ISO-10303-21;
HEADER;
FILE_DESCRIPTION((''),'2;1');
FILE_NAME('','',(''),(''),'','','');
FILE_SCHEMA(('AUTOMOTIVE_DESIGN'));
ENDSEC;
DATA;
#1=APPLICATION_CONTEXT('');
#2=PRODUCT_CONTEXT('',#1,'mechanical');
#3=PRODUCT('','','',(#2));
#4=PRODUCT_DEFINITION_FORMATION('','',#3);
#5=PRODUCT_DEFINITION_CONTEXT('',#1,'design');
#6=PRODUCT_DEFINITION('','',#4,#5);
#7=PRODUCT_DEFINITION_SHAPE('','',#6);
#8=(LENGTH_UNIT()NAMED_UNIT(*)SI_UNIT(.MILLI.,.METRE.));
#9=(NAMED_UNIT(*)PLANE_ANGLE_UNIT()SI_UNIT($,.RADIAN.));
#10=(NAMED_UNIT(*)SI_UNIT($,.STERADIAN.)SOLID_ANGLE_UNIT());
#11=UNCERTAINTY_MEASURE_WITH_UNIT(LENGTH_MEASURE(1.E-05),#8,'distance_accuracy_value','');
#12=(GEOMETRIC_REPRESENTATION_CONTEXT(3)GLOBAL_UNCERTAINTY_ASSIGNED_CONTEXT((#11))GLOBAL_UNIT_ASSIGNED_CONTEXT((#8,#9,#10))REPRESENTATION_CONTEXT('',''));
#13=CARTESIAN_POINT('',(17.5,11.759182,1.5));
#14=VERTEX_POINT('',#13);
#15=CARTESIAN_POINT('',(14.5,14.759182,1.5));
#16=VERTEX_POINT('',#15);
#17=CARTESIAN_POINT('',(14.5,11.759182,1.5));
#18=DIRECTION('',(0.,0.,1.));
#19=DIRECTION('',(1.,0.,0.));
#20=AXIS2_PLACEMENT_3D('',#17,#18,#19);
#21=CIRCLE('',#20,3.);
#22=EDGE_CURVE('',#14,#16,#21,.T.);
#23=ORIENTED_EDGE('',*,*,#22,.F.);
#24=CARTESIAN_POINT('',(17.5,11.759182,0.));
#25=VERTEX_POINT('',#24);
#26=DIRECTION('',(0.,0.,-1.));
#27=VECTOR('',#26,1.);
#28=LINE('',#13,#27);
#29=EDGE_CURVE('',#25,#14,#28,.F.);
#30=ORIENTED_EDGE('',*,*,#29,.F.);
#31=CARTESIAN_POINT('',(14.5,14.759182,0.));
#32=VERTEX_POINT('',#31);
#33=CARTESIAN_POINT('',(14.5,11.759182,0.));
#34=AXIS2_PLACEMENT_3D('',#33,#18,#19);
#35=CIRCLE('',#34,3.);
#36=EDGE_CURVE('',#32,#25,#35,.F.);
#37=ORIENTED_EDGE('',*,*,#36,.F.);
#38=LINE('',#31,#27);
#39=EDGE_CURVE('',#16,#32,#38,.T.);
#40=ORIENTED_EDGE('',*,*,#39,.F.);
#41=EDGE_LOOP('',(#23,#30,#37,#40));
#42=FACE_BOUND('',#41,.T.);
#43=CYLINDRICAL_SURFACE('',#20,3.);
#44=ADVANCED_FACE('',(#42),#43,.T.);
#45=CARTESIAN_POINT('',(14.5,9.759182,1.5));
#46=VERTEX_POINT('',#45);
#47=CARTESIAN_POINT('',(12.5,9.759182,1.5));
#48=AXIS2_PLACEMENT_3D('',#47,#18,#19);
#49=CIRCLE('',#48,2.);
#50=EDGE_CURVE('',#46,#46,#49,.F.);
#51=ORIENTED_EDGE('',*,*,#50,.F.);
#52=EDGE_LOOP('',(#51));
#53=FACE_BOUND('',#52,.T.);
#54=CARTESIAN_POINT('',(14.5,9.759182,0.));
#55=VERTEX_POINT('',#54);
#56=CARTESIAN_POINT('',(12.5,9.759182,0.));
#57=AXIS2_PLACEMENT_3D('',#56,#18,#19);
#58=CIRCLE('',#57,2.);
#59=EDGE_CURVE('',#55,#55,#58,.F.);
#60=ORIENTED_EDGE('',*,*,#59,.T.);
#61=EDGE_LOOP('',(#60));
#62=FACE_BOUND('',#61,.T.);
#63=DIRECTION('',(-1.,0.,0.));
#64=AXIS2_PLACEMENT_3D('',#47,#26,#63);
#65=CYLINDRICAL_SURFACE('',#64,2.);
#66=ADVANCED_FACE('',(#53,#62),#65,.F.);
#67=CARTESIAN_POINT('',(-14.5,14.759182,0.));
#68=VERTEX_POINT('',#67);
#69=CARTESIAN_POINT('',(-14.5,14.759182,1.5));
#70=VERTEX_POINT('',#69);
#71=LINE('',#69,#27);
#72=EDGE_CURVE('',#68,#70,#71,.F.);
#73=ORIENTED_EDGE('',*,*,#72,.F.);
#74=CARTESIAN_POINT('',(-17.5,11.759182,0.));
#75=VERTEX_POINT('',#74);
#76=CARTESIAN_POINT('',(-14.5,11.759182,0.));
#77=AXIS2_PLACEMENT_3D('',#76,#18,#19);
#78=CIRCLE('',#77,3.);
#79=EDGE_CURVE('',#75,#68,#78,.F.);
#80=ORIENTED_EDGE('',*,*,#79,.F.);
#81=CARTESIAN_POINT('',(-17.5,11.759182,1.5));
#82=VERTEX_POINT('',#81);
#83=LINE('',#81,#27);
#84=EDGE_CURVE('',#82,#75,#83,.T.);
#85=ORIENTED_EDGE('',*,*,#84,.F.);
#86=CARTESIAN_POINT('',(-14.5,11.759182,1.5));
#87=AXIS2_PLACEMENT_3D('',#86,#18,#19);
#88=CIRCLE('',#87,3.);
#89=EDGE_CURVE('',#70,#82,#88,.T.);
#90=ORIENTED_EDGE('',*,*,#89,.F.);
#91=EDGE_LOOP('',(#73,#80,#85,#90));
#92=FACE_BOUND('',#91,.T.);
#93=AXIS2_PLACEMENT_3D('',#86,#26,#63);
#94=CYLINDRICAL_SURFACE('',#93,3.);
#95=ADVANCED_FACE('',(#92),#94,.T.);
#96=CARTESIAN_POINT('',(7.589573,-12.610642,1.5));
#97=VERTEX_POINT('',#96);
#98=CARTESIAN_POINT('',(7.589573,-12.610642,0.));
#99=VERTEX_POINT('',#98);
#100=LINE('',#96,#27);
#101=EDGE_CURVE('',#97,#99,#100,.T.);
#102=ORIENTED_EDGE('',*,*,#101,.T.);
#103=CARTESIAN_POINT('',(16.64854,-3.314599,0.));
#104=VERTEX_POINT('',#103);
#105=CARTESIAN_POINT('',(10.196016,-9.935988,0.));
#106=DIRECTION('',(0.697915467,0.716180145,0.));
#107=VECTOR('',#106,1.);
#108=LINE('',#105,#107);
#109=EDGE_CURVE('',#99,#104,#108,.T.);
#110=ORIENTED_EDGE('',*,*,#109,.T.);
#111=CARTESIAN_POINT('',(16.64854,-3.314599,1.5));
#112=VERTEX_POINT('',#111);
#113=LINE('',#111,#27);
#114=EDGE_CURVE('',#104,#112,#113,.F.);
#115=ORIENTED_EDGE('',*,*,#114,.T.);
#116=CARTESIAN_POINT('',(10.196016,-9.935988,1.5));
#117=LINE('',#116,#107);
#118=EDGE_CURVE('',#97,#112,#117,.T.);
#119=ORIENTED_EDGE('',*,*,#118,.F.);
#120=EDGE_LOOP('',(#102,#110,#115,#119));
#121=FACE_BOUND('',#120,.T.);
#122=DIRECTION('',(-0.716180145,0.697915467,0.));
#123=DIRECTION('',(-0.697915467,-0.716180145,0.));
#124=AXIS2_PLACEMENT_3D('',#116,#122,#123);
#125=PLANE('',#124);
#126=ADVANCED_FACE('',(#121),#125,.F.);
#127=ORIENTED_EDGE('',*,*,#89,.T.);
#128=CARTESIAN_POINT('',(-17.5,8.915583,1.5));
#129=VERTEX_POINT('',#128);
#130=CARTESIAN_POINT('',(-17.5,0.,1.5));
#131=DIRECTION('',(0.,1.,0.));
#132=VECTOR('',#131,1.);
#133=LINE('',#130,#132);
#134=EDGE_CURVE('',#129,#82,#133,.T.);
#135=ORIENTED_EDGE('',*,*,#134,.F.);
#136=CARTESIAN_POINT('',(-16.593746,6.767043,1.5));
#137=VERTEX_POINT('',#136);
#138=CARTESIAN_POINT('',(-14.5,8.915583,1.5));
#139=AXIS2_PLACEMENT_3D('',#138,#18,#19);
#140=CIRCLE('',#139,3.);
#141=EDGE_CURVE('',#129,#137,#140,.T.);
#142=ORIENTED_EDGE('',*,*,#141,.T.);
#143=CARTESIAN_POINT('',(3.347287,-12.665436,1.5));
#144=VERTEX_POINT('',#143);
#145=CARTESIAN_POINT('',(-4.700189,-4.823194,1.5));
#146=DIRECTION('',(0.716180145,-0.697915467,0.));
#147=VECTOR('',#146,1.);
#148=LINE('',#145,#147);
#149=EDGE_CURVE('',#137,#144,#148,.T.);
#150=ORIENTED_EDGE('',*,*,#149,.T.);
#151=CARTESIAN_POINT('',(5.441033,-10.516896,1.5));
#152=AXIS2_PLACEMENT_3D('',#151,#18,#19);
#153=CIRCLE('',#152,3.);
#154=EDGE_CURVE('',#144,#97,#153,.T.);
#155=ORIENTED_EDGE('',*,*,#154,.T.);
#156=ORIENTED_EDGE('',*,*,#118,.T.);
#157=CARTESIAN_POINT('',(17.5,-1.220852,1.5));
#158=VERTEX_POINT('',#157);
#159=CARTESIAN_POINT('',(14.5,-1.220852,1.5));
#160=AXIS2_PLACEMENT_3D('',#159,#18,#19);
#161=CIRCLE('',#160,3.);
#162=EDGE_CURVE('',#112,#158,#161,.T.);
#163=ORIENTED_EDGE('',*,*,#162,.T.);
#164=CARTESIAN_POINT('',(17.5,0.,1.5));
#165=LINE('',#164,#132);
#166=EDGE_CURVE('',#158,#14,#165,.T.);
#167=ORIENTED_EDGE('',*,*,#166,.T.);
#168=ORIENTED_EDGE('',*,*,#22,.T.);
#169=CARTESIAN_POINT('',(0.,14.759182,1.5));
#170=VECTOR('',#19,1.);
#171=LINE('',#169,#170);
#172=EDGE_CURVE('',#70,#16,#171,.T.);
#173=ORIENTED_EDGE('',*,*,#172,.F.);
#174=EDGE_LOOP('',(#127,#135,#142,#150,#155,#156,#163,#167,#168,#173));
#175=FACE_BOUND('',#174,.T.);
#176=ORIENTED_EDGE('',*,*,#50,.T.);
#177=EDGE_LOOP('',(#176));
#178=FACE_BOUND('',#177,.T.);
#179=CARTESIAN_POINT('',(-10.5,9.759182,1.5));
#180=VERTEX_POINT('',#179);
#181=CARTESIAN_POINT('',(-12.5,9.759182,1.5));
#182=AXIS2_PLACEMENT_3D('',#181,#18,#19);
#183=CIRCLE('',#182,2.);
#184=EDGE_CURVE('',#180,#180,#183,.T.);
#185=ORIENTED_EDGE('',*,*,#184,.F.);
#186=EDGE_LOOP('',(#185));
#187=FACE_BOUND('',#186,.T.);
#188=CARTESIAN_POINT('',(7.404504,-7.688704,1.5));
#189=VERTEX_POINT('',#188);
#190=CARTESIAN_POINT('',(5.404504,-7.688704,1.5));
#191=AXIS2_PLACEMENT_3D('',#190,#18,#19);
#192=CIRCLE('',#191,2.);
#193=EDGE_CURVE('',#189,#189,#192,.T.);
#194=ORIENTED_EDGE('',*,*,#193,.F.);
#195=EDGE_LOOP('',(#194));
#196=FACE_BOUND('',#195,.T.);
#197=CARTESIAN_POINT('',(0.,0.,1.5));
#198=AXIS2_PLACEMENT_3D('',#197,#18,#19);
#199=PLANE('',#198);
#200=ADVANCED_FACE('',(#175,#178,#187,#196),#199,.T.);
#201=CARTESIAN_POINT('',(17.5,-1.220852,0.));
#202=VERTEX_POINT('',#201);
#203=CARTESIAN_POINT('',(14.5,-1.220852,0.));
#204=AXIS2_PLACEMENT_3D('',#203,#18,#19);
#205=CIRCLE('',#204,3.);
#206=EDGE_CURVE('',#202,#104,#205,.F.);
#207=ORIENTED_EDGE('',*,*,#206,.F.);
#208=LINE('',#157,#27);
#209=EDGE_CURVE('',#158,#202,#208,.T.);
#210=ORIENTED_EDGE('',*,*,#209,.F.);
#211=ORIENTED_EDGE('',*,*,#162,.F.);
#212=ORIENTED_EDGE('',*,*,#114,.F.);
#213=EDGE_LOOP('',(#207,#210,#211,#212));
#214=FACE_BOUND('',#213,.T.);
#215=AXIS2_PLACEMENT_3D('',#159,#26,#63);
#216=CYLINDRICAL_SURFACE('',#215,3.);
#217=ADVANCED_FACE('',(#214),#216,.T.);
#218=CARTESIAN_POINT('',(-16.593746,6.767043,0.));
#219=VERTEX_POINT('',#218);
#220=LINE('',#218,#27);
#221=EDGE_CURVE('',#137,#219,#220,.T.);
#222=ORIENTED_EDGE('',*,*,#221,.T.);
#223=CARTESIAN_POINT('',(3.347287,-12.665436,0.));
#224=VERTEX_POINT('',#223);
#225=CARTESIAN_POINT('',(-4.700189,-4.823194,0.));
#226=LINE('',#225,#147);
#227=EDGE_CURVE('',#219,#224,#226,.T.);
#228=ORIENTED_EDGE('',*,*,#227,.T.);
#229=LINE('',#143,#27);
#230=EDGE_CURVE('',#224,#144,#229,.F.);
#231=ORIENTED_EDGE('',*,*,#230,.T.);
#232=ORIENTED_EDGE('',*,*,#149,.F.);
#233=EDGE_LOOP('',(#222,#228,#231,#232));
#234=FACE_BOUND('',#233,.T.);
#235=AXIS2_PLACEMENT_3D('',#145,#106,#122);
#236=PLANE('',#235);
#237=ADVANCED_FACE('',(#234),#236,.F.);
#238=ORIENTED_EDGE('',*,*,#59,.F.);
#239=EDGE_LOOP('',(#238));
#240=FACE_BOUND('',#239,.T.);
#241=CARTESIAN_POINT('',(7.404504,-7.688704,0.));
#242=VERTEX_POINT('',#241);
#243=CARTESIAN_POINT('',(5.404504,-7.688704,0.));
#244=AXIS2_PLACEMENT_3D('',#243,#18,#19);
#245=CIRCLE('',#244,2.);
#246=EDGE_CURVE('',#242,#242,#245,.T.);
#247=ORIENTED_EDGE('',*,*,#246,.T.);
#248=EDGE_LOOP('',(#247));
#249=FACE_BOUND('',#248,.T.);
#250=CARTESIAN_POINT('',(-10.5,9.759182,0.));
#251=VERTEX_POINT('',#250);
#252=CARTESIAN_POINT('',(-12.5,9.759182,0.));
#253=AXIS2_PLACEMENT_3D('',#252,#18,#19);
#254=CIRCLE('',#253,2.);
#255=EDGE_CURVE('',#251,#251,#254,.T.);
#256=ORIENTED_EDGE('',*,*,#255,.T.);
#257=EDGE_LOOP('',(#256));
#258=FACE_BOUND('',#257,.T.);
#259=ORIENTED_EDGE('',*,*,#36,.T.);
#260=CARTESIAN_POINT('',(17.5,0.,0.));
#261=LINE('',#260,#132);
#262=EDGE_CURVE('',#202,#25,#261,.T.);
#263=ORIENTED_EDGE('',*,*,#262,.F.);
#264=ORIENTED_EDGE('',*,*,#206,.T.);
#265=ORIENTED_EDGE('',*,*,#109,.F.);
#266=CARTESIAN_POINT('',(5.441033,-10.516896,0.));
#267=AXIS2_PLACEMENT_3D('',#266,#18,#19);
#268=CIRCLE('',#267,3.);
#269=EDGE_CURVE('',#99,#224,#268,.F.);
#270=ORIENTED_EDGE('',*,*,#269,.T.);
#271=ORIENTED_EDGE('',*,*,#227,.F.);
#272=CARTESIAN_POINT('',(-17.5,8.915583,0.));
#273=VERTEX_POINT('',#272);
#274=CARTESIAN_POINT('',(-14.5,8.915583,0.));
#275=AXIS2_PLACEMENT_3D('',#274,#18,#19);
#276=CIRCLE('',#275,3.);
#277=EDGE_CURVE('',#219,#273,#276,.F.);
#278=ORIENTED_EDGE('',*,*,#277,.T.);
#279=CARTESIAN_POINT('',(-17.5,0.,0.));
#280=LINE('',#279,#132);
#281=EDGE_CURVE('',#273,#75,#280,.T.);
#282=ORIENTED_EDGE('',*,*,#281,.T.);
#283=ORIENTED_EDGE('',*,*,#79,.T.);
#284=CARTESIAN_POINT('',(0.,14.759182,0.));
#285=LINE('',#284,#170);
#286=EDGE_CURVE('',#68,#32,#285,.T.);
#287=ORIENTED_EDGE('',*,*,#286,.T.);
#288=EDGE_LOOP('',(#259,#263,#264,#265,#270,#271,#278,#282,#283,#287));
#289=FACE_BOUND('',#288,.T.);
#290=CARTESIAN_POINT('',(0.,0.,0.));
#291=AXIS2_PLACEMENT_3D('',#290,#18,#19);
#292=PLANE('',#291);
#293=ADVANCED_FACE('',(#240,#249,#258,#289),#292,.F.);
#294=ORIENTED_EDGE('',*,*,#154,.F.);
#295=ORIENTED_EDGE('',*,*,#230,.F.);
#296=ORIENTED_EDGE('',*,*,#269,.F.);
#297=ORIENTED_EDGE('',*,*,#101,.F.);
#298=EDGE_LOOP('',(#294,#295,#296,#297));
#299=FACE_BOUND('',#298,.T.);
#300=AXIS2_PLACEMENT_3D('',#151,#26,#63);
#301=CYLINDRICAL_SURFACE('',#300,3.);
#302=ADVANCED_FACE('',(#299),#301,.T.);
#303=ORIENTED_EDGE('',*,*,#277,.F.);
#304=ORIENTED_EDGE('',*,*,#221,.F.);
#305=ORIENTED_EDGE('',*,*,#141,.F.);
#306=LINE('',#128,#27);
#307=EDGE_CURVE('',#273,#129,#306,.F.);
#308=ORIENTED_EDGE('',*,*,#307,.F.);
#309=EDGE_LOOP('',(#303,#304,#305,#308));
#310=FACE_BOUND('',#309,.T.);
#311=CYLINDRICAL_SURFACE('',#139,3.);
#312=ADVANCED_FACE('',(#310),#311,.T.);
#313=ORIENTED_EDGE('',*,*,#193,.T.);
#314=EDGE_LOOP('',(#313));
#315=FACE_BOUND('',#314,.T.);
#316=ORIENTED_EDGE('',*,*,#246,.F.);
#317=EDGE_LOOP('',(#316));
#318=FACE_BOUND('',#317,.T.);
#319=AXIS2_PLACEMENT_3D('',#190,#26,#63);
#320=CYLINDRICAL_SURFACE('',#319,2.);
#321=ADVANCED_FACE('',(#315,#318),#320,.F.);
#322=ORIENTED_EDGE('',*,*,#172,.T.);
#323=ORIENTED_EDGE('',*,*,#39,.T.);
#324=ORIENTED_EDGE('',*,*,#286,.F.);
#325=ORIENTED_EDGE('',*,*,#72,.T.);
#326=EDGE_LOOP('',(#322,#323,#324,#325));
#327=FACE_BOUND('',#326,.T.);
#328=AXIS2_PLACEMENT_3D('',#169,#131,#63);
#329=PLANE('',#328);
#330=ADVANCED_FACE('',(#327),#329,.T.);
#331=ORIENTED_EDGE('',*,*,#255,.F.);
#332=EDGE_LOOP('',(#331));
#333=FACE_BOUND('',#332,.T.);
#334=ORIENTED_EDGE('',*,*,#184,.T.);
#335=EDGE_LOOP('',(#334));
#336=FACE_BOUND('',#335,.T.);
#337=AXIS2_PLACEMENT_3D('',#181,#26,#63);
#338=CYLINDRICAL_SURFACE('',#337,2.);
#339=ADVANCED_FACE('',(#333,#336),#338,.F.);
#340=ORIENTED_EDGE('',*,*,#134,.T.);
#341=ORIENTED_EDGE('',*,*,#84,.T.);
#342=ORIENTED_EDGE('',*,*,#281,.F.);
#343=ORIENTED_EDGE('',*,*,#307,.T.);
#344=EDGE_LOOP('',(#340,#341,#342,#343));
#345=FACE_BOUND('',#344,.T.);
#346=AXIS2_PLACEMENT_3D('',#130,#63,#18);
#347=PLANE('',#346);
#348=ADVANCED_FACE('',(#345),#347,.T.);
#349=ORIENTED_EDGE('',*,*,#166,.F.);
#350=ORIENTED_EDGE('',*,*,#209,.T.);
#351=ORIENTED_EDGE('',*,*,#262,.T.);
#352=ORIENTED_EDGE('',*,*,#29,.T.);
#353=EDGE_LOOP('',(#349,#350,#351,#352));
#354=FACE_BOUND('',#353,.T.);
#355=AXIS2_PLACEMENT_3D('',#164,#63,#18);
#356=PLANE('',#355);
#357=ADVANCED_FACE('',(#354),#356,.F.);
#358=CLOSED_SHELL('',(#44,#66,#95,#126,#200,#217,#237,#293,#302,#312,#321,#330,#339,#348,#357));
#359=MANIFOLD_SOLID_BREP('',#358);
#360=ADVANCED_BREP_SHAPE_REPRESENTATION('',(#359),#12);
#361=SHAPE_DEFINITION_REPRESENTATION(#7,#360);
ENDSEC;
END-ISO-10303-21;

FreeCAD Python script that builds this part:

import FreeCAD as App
import Part
import Sketcher
from FreeCAD import Vector
Q = App.Units.Quantity


def edges_at(feature, points):
    """Names of the edges that pass closest to the given points."""
    edges = feature.Shape.Edges
    near = lambda p: min(range(len(edges)), key=lambda i: edges[i].distToShape(Part.Vertex(*p))[0])
    return sorted({f"Edge{near(p) + 1}" for p in points})


def add_polygon(sketch, points):
    """Adds a closed chain of lines whose ends are joined by coincident constraints."""
    first, n = sketch.GeometryCount, len(points)
    for a, b in zip(points, points[1:] + points[:1]):
        sketch.addGeometry(Part.LineSegment(App.Vector(*a, 0), App.Vector(*b, 0)), False)
    for i in range(n):
        sketch.addConstraint(Sketcher.Constraint("Coincident", first + i, 2, first + (i + 1) % n, 1))

doc = App.newDocument("Part")
params = doc.addObject("Spreadsheet::Sheet", "Params")
for row, (alias, value) in enumerate([
    ("sketch1_diameter", "4 mm"),
    ("sketch1_width", "35 mm"),
    ("pad1_length", "1.5 mm"),
    ("fillet_radius", "3 mm"),
], start=1):
    params.set(f"A{row}", alias)
    params.set(f"B{row}", "=" + value)
    params.setAlias(f"B{row}", alias)

body = doc.addObject("PartDesign::Body", "Body")

sketch1 = body.newObject("Sketcher::SketchObject", "Sketch")
sketch1.AttachmentSupport = (doc.getObject("XY_Plane"), [""])
sketch1.MapMode = "FlatFace"
add_polygon(sketch1, [(-17.5, 7.7), (5.5, -14.8), (17.5, -2.4), (17.5, 14.8), (-17.5, 14.8)])
sketch1.addGeometry(Part.Circle(Vector(5.4, -7.7, 0), Vector(0, 0, 1), 2), False)
sketch1.addGeometry(Part.Circle(Vector(-12.5, 9.8, 0), Vector(0, 0, 1), 2), False)
sketch1.addGeometry(Part.Circle(Vector(12.5, 9.8, 0), Vector(0, 0, 1), 2), False)
sketch1.addConstraint(Sketcher.Constraint("Vertical", 2))
sketch1.addConstraint(Sketcher.Constraint("Horizontal", 3))
sketch1.addConstraint(Sketcher.Constraint("Vertical", 4))
sketch1.addConstraint(Sketcher.Constraint("Equal", 5, 6))
sketch1.addConstraint(Sketcher.Constraint("Equal", 6, 7))
sketch1.addConstraint(Sketcher.Constraint("Symmetric", 6, 3, 7, 3, -2))
sketch1.addConstraint(Sketcher.Constraint("Perpendicular", 0, 1))
sketch1.addConstraint(Sketcher.Constraint("Diameter", 5, 4.0))
sketch1.addConstraint(Sketcher.Constraint("DistanceX", 3, 2, 3, 1, 35.0))
sketch1.addConstraint(Sketcher.Constraint("DistanceX", 6, 3, 7, 3, 25.0))
sketch1.addConstraint(Sketcher.Constraint("DistanceX", 7, 3, 1, 2, 5.0))
sketch1.addConstraint(Sketcher.Constraint("DistanceY", 7, 3, 2, 2, 5.0))
sketch1.addConstraint(Sketcher.Constraint("Angle", 0, Q("-44.26 deg")))
sketch1.addConstraint(Sketcher.Constraint("DistanceY", 4, 2, 4, 1, 7.108998))
sketch1.addConstraint(Sketcher.Constraint("Distance", 0, 32.108998))
sketch1.addConstraint(Sketcher.Constraint("DistanceY", 0, 2, 5, 3, 7.070478))
sketch1.addConstraint(Sketcher.Constraint("DistanceX", -1, 1, 5, 3, 5.404504))
sketch1.addConstraint(Sketcher.Constraint("DistanceY", 5, 3, -1, 1, 7.688704))
sketch1.setExpression("Constraints[12]", "Params.sketch1_diameter")
sketch1.setExpression("Constraints[13]", "Params.sketch1_width")
pad1 = body.newObject("PartDesign::Pad", "Pad")
pad1.Profile = sketch1
pad1.setExpression("Length", "Params.pad1_length")
doc.recompute()

fillet = body.newObject("PartDesign::Fillet", "Fillet")
fillet.Base = (pad1, edges_at(pad1, [
    (-17.5, 7.65, 0.75),
    (-17.5, 14.759, 0.75),
    (17.5, 14.759, 0.75),
    (17.5, -2.441, 0.75),
    (5.496, -14.759, 0.75),
]))
fillet.setExpression("Radius", "Params.fillet_radius")

doc.recompute()
